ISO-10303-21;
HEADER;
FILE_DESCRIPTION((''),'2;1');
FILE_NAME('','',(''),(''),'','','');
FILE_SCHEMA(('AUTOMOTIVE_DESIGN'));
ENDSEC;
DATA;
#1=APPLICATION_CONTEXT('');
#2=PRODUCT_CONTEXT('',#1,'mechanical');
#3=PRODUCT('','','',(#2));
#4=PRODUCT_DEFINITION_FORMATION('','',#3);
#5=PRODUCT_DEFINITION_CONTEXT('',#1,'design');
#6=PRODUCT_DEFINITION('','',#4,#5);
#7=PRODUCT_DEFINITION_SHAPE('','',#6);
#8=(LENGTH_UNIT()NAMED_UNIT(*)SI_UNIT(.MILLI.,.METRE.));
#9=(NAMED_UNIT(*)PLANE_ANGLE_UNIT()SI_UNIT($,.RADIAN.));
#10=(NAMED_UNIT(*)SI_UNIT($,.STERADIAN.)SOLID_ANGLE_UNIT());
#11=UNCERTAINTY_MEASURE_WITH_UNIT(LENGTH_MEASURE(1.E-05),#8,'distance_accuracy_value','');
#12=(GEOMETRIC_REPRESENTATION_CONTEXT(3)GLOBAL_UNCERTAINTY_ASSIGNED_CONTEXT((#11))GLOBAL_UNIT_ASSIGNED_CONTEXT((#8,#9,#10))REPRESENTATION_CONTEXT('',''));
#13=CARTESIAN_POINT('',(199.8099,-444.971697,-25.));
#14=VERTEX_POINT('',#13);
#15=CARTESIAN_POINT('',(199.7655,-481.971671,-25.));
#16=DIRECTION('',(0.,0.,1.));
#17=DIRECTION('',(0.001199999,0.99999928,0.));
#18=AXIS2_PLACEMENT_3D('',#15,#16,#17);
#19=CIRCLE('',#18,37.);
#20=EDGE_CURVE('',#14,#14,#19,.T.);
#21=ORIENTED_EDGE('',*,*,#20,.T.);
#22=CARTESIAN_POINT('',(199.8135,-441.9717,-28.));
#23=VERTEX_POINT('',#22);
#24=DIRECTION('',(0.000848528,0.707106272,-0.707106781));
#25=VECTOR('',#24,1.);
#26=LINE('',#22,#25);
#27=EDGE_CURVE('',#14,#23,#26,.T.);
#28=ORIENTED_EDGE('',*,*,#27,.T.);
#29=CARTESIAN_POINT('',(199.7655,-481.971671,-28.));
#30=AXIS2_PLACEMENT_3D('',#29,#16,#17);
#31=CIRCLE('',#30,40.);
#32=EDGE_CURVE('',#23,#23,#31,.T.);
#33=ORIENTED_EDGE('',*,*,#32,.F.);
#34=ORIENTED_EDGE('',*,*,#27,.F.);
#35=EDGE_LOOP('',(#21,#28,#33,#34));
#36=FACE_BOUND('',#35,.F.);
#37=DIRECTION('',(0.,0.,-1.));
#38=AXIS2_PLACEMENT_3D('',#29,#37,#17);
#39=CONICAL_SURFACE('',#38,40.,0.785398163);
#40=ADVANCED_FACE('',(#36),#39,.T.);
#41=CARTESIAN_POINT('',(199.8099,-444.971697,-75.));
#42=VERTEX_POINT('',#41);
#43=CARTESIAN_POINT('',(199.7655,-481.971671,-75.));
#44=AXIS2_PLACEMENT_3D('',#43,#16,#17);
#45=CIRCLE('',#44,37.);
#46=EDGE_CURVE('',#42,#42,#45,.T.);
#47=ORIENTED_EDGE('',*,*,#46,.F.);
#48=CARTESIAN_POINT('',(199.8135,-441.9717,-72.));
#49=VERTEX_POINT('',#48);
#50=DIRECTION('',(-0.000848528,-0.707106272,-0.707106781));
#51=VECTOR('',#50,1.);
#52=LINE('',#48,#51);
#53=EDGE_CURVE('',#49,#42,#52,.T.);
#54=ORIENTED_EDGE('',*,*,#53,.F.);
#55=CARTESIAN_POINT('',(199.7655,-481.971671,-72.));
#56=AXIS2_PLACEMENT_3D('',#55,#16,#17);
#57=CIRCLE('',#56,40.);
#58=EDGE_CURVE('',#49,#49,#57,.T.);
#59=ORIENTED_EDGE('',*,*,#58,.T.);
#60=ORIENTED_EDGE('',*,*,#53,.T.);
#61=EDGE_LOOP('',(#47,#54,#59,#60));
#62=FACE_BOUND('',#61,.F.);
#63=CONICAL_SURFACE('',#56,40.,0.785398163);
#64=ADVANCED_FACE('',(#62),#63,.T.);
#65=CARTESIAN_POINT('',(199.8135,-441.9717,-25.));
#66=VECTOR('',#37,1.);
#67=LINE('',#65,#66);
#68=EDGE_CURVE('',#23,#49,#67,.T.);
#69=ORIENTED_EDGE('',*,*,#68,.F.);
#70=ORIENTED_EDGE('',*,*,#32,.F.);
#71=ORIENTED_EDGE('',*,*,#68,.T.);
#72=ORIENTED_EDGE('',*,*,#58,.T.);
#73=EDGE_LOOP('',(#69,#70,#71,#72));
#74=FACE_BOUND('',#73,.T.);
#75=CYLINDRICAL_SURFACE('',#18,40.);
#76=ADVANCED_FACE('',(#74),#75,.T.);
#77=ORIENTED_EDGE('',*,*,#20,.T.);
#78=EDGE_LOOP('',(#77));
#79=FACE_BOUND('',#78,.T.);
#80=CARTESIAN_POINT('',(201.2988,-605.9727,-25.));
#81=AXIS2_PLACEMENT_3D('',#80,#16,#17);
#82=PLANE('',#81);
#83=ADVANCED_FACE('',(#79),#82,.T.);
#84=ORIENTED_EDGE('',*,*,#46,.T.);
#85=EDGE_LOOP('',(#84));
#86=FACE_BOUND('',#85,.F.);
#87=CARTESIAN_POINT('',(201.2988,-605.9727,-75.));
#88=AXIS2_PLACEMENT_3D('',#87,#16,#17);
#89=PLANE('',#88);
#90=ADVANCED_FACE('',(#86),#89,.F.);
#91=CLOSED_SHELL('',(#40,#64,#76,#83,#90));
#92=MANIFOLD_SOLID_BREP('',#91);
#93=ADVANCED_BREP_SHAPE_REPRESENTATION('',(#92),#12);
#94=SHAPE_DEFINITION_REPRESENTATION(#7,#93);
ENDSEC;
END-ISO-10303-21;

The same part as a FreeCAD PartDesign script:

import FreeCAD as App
import Part
import Sketcher

V = App.Vector
Q = App.Units.Quantity


def edges_at(feature, points):
    """Names of the edges that pass closest to the given points."""
    edges = feature.Shape.Edges
    near = lambda p: min(range(len(edges)), key=lambda i: edges[i].distToShape(Part.Vertex(*p))[0])
    return sorted({f"Edge{near(p) + 1}" for p in points})

doc = App.newDocument("Part")
body = doc.addObject("PartDesign::Body", "Body")

sketch1 = body.newObject("Sketcher::SketchObject", "Sketch")
sketch1.AttachmentSupport = (doc.getObject("XY_Plane"), [""])
sketch1.MapMode = "FlatFace"
sketch1.AttachmentOffset = App.Placement(V(0, 0, -25), App.Rotation())
sketch1.addGeometry(Part.Circle(V(200, -482, 0), V(0, 0, 1), 40), False)
sketch1.addConstraint(Sketcher.Constraint("Diameter", 0, Q("80 mm")))
sketch1.addConstraint(Sketcher.Constraint("DistanceX", -1, 1, 0, 3, Q("199.7655 mm")))
sketch1.addConstraint(Sketcher.Constraint("DistanceY", 0, 3, -1, 1, Q("481.9717 mm")))
pad1 = body.newObject("PartDesign::Pad", "Pad")
pad1.Profile = sketch1
pad1.Length = 50
pad1.Reversed = True
doc.recompute()

chamfer = body.newObject("PartDesign::Chamfer", "Chamfer")
chamfer.Base = (pad1, edges_at(pad1, [(199.714, -521.972, -25), (199.714, -521.972, -75)]))
chamfer.Size = 3

doc.recompute()
